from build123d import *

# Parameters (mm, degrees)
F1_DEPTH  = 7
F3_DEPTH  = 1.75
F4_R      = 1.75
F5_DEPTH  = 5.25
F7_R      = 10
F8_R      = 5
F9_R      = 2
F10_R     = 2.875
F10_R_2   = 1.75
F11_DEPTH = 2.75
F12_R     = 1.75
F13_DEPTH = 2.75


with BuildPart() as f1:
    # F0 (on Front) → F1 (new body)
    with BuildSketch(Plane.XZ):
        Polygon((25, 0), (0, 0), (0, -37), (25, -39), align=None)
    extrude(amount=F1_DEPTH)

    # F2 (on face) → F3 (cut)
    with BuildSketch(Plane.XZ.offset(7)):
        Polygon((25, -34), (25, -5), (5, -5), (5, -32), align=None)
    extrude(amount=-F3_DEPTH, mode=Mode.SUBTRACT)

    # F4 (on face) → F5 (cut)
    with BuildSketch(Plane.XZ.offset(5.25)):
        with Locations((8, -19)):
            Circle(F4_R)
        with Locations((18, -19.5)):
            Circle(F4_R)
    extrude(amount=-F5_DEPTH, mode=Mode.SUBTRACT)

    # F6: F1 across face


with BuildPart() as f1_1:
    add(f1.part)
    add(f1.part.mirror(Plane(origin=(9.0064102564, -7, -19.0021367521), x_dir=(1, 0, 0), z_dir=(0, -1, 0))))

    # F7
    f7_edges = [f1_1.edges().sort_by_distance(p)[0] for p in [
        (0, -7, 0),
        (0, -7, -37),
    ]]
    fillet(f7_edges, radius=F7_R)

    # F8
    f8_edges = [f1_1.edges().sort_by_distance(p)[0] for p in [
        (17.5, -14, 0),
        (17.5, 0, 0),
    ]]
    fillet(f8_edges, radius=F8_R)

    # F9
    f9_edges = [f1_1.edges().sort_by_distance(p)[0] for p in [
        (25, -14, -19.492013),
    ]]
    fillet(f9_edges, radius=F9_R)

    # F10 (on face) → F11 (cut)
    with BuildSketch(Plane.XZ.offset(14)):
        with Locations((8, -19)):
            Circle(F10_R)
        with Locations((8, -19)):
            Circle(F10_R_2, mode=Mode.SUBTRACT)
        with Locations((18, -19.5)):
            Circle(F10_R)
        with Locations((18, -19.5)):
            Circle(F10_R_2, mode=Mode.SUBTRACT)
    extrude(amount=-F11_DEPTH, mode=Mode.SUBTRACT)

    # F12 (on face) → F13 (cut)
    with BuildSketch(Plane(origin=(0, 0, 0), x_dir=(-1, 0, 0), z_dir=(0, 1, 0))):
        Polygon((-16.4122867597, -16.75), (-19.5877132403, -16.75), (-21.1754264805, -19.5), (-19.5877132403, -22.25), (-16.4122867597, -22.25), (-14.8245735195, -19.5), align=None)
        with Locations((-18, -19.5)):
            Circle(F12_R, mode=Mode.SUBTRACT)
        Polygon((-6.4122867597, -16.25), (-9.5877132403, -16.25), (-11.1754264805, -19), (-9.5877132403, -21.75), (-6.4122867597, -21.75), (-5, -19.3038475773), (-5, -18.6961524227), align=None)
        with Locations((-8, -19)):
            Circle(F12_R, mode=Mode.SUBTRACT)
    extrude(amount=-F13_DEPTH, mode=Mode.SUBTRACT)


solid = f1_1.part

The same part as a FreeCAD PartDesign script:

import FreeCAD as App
import Part
import Sketcher

V = App.Vector
Q = App.Units.Quantity


def edges_at(feature, points):
    """Names of the edges that pass closest to the given points."""
    edges = feature.Shape.Edges
    near = lambda p: min(range(len(edges)), key=lambda i: edges[i].distToShape(Part.Vertex(*p))[0])
    return sorted({f"Edge{near(p) + 1}" for p in points})


def add_polygon(sketch, points):
    """Adds a closed chain of lines whose ends are joined by coincident constraints."""
    first, n = sketch.GeometryCount, len(points)
    for a, b in zip(points, points[1:] + points[:1]):
        sketch.addGeometry(Part.LineSegment(App.Vector(*a, 0), App.Vector(*b, 0)), False)
    for i in range(n):
        sketch.addConstraint(Sketcher.Constraint("Coincident", first + i, 2, first + (i + 1) % n, 1))

doc = App.newDocument("Part")
body = doc.addObject("PartDesign::Body", "Body")

# Sketch on XZ plane
sketch1 = body.newObject("Sketcher::SketchObject", "Sketch")
sketch1.AttachmentSupport = (doc.getObject("XZ_Plane"), [""])
sketch1.MapMode = "FlatFace"
add_polygon(sketch1, [(25, 0), (0, 0), (0, -37), (25, -39)])  # lines 0-3
sketch1.addConstraint([
    Sketcher.Constraint("Horizontal", 0),
    Sketcher.Constraint("Vertical", 1),
    Sketcher.Constraint("Vertical", 3),
    Sketcher.Constraint("Coincident", 0, 2, -1, 1),
    Sketcher.Constraint("DistanceX", 0, 2, 0, 1, 25.0),
    Sketcher.Constraint("DistanceY", 1, 2, 1, 1, 37.0),
    Sketcher.Constraint("DistanceY", 3, 1, 3, 2, 39.0),
])
pad1 = body.newObject("PartDesign::Pad", "Pad")
pad1.Profile = sketch1
pad1.Length = 7

# Sketch on XZ plane
sketch2 = body.newObject("Sketcher::SketchObject", "Sketch001")
sketch2.AttachmentSupport = (doc.getObject("XZ_Plane"), [""])
sketch2.MapMode = "FlatFace"
sketch2.AttachmentOffset = App.Placement(V(0, 0, 7), App.Rotation())
add_polygon(sketch2, [(25, -34), (25, -5), (5, -5), (5, -32)])  # lines 0-3
sketch2.addConstraint([
    Sketcher.Constraint("Vertical", 0),
    Sketcher.Constraint("Horizontal", 1),
    Sketcher.Constraint("Vertical", 2),
    Sketcher.Constraint("DistanceX", 1, 2, 1, 1, 20.0),
    Sketcher.Constraint("DistanceY", 0, 1, 0, 2, 29.0),
    Sketcher.Constraint("DistanceY", 2, 2, 2, 1, 27.0),
    Sketcher.Constraint("DistanceX", -1, 1, 0, 2, 25.0),
    Sketcher.Constraint("DistanceY", 0, 2, -1, 1, 5.0),
])
pocket1 = body.newObject("PartDesign::Pocket", "Pocket")
pocket1.Profile = sketch2
pocket1.Length = 1.75

# Sketch on XZ plane
sketch3 = body.newObject("Sketcher::SketchObject", "Sketch002")
sketch3.AttachmentSupport = (doc.getObject("XZ_Plane"), [""])
sketch3.MapMode = "FlatFace"
sketch3.AttachmentOffset = App.Placement(V(0, 0, 5.25), App.Rotation())
sketch3.addGeometry([
    Part.Circle(V(8, -19, 0), V(0, 0, 1), 1.75),
    Part.Circle(V(18, -19.5, 0), V(0, 0, 1), 1.75),
], False)
sketch3.addConstraint([
    Sketcher.Constraint("Equal", 0, 1),
    Sketcher.Constraint("Diameter", 0, 3.5),
    Sketcher.Constraint("DistanceX", -1, 1, 0, 3, 8.0),
    Sketcher.Constraint("DistanceY", 0, 3, -1, 1, 19.0),
    Sketcher.Constraint("DistanceX", -1, 1, 1, 3, 18.0),
    Sketcher.Constraint("DistanceY", 1, 3, -1, 1, 19.5),
])
pocket2 = body.newObject("PartDesign::Pocket", "Pocket001")
pocket2.Profile = sketch3
pocket2.Length = 5.25
body2 = doc.addObject("PartDesign::Body", "Body001")
doc.recompute()

body2.BaseFeature = body
doc.recompute()

mirroring = doc.addObject("Part::Mirroring", "Mirroring")
mirroring.Source = body
mirroring.Base = V(9.00641, -7, -19.002137)
mirroring.Normal = V(0, -1, 0)
body3 = doc.addObject("PartDesign::Body", "Body002")
body3.BaseFeature = mirroring
boolean = body2.newObject("PartDesign::Boolean", "Boolean")
boolean.Type = "Fuse"
boolean.addObjects([body3])
doc.recompute()

fillet = body2.newObject("PartDesign::Fillet", "Fillet")
fillet.Base = (boolean, edges_at(boolean, [(0, -7, 0), (0, -7, -37)]))
fillet.Radius = 10
doc.recompute()

fillet2 = body2.newObject("PartDesign::Fillet", "Fillet001")
fillet2.Base = (fillet, edges_at(fillet, [(17.5, -14, 0), (17.5, 0, 0)]))
fillet2.Radius = 5
doc.recompute()

fillet3 = body2.newObject("PartDesign::Fillet", "Fillet002")
fillet3.Base = (fillet2, edges_at(fillet2, [(25, -14, -19.492)]))
fillet3.Radius = 2

# Sketch on XZ plane
sketch4 = body2.newObject("Sketcher::SketchObject", "Sketch003")
sketch4.AttachmentSupport = (doc.getObject("XZ_Plane001"), [""])
sketch4.MapMode = "FlatFace"
sketch4.AttachmentOffset = App.Placement(V(0, 0, 14), App.Rotation())
sketch4.addGeometry([
    Part.Circle(V(8, -19, 0), V(0, 0, 1), 2.875),
    Part.Circle(V(8, -19, 0), V(0, 0, 1), 1.75),
    Part.Circle(V(18, -19.5, 0), V(0, 0, 1), 2.875),
    Part.Circle(V(18, -19.5, 0), V(0, 0, 1), 1.75),
], False)
sketch4.addConstraint([
    Sketcher.Constraint("Coincident", 1, 3, 0, 3),
    Sketcher.Constraint("Coincident", 3, 3, 2, 3),
    Sketcher.Constraint("Equal", 0, 2),
    Sketcher.Constraint("Equal", 1, 3),
    Sketcher.Constraint("Diameter", 1, 3.5),
    Sketcher.Constraint("Diameter", 0, 5.75),
    Sketcher.Constraint("DistanceX", -1, 1, 0, 3, 8.0),
    Sketcher.Constraint("DistanceY", 0, 3, -1, 1, 19.0),
    Sketcher.Constraint("DistanceX", -1, 1, 2, 3, 18.0),
    Sketcher.Constraint("DistanceY", 2, 3, -1, 1, 19.5),
])
pocket3 = body2.newObject("PartDesign::Pocket", "Pocket002")
pocket3.Profile = sketch4
pocket3.Length = 2.75

# Sketch on XZ plane
sketch5 = body2.newObject("Sketcher::SketchObject", "Sketch004")
sketch5.AttachmentSupport = (doc.getObject("XZ_Plane001"), [""])
sketch5.MapMode = "FlatFace"
add_polygon(sketch5, [(16.412287, -16.75), (19.587713, -16.75), (21.175426, -19.5), (19.587713, -22.25), (16.412287, -22.25), (14.824574, -19.5)])  # lines 0-5
sketch5.addGeometry(Part.Circle(V(18, -19.5, 0), V(0, 0, 1), 1.75), False)  # 6
add_polygon(sketch5, [(6.412287, -16.25), (9.587713, -16.25), (11.175426, -19), (9.587713, -21.75), (6.412287, -21.75), (5, -19.303848), (5, -18.696152)])  # lines 7-13
sketch5.addGeometry(Part.Circle(V(8, -19, 0), V(0, 0, 1), 1.75), False)  # 14
sketch5.addConstraint([
    Sketcher.Constraint("Horizontal", 0),
    Sketcher.Constraint("Horizontal", 3),
    Sketcher.Constraint("Horizontal", 7),
    Sketcher.Constraint("Horizontal", 10),
    Sketcher.Constraint("Vertical", 12),
    Sketcher.Constraint("Equal", 6, 14),
    Sketcher.Constraint("Parallel", 1, 4),
    Sketcher.Constraint("Parallel", 2, 5),
    Sketcher.Constraint("Parallel", 4, 8),
    Sketcher.Constraint("Parallel", 5, 9),
    Sketcher.Constraint("Parallel", 8, 11),
    Sketcher.Constraint("Parallel", 9, 13),
    Sketcher.Constraint("Horizontal", 6, 3, 1, 2),
    Sketcher.Constraint("Horizontal", 1, 2, 4, 2),
    Sketcher.Constraint("Horizontal", 14, 3, 8, 2),
    Sketcher.Constraint("Vertical", 0, 2, 2, 2),
    Sketcher.Constraint("Vertical", 3, 2, 5, 2),
    Sketcher.Constraint("Vertical", 7, 2, 9, 2),
    Sketcher.Constraint("Vertical", 10, 2, 13, 2),
    Sketcher.Constraint("Equal", 3, 7),
    Sketcher.Constraint("Equal", 5, 8),
    Sketcher.Constraint("Diameter", 6, 3.5),
    Sketcher.Constraint("Angle", 1, Q("-60 deg")),
    Sketcher.Constraint("DistanceX", -1, 1, 6, 3, 18.0),
    Sketcher.Constraint("DistanceX", -1, 1, 14, 3, 8.0),
    Sketcher.Constraint("DistanceY", 14, 3, -1, 1, 19.0),
    Sketcher.Constraint("DistanceX", -1, 1, 11, 2, 5.0),
    Sketcher.Constraint("DistanceY", 3, 2, 7, 2, 6.0),
    Sketcher.Constraint("DistanceY", 6, 3, -1, 1, 19.5),
    Sketcher.Constraint("DistanceX", 0, 1, 0, 2, 3.175426),
    Sketcher.Constraint("DistanceY", 12, 1, 12, 2, 0.607695),
    Sketcher.Constraint("DistanceX", 7, 2, 4, 2, 5.23686),
])
pocket4 = body2.newObject("PartDesign::Pocket", "Pocket003")
pocket4.Profile = sketch5
pocket4.Length = 2.75
pocket4.Reversed = True
mirroring.Visibility = False

doc.recompute()
